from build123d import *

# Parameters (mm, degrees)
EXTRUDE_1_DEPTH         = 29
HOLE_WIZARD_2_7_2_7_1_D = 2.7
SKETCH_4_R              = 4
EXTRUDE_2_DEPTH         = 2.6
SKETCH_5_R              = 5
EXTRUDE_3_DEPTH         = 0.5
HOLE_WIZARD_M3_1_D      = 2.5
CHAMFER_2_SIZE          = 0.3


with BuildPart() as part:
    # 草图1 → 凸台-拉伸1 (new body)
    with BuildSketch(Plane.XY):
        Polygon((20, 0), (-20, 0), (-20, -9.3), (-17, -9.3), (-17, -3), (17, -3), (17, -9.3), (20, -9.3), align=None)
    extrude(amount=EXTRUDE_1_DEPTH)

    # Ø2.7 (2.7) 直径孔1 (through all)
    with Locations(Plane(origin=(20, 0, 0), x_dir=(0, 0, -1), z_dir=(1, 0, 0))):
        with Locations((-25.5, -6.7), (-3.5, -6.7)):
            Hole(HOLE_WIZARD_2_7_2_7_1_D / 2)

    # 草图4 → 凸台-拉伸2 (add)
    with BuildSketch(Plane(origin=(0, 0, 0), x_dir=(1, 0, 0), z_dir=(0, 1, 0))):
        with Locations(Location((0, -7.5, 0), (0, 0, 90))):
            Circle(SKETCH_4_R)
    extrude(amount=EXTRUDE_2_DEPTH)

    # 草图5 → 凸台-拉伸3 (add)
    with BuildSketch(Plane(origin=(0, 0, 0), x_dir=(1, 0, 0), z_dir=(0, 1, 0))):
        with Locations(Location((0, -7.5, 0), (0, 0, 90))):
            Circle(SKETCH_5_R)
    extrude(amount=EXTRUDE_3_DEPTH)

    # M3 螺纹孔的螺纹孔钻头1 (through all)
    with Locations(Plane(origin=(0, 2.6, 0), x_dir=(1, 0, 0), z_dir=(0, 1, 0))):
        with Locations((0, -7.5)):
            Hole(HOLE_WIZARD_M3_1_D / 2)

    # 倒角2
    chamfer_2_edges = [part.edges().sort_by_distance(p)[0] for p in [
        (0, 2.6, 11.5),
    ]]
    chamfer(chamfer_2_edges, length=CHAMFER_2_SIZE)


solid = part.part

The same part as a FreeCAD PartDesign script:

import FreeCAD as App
import Part
import Sketcher
from FreeCAD import Vector


def edges_at(feature, points):
    """Names of the edges that pass closest to the given points."""
    edges = feature.Shape.Edges
    near = lambda p: min(range(len(edges)), key=lambda i: edges[i].distToShape(Part.Vertex(*p))[0])
    return sorted({f"Edge{near(p) + 1}" for p in points})

doc = App.newDocument("Part")
body = doc.addObject("PartDesign::Body", "Body")

# Sketch on XY plane
sketch1 = doc.addObject("Sketcher::SketchObject", "Sketch")
body.addObject(sketch1)
sketch1.AttachmentSupport = (doc.XY_Plane, [""])
sketch1.MapMode = "FlatFace"
sketch1.addGeometry(Part.LineSegment(Vector(20, 0, 0), Vector(-20, 0, 0)), False)
sketch1.addGeometry(Part.LineSegment(Vector(-20, 0, 0), Vector(-20, -9.3, 0)), False)
sketch1.addGeometry(Part.LineSegment(Vector(-20, -9.3, 0), Vector(-17, -9.3, 0)), False)
sketch1.addGeometry(Part.LineSegment(Vector(-17, -9.3, 0), Vector(-17, -3, 0)), False)
sketch1.addGeometry(Part.LineSegment(Vector(-17, -3, 0), Vector(17, -3, 0)), False)
sketch1.addGeometry(Part.LineSegment(Vector(17, -3, 0), Vector(17, -9.3, 0)), False)
sketch1.addGeometry(Part.LineSegment(Vector(17, -9.3, 0), Vector(20, -9.3, 0)), False)
sketch1.addGeometry(Part.LineSegment(Vector(20, -9.3, 0), Vector(20, 0, 0)), False)
sketch1.addConstraint(Sketcher.Constraint("Coincident", 0, 2, 1, 1))
sketch1.addConstraint(Sketcher.Constraint("Coincident", 1, 2, 2, 1))
sketch1.addConstraint(Sketcher.Constraint("Coincident", 2, 2, 3, 1))
sketch1.addConstraint(Sketcher.Constraint("Coincident", 3, 2, 4, 1))
sketch1.addConstraint(Sketcher.Constraint("Coincident", 4, 2, 5, 1))
sketch1.addConstraint(Sketcher.Constraint("Coincident", 5, 2, 6, 1))
sketch1.addConstraint(Sketcher.Constraint("Coincident", 6, 2, 7, 1))
sketch1.addConstraint(Sketcher.Constraint("Coincident", 7, 2, 0, 1))
sketch1.addConstraint(Sketcher.Constraint("Horizontal", 0))
sketch1.addConstraint(Sketcher.Constraint("Vertical", 1))
sketch1.addConstraint(Sketcher.Constraint("Horizontal", 2))
sketch1.addConstraint(Sketcher.Constraint("Vertical", 3))
sketch1.addConstraint(Sketcher.Constraint("Horizontal", 4))
sketch1.addConstraint(Sketcher.Constraint("Vertical", 5))
sketch1.addConstraint(Sketcher.Constraint("Horizontal", 6))
sketch1.addConstraint(Sketcher.Constraint("Vertical", 7))
sketch1.addConstraint(Sketcher.Constraint("Symmetric", 0, 2, 7, 2, -1, 1))
sketch1.addConstraint(Sketcher.Constraint("Symmetric", 2, 2, 5, 2, -2))
sketch1.addConstraint(Sketcher.Constraint("DistanceX", 0, 2, 0, 1, 40.0))
sketch1.addConstraint(Sketcher.Constraint("DistanceX", 2, 1, 2, 2, 3.0))
sketch1.addConstraint(Sketcher.Constraint("DistanceY", 1, 2, 1, 1, 9.3))
sketch1.addConstraint(Sketcher.Constraint("DistanceY", 3, 1, 3, 2, 6.3))
pad1 = doc.addObject("PartDesign::Pad", "Pad")
body.addObject(pad1)
pad1.Profile = sketch1
pad1.Length = 29

# Sketch on YZ plane
sketch2 = doc.addObject("Sketcher::SketchObject", "Sketch001")
body.addObject(sketch2)
sketch2.AttachmentSupport = (doc.YZ_Plane, [""])
sketch2.MapMode = "FlatFace"
sketch2.AttachmentOffset = App.Placement(Vector(0, 0, 20), App.Rotation())
sketch2.addGeometry(Part.Circle(Vector(-6.7, 25.5, 0), Vector(0, 0, 1), 1.4), False)
sketch2.addGeometry(Part.Circle(Vector(-6.7, 3.5, 0), Vector(0, 0, 1), 1.4), False)
sketch2.addConstraint(Sketcher.Constraint("Equal", 0, 1))
sketch2.addConstraint(Sketcher.Constraint("Vertical", 0, 3, 1, 3))
sketch2.addConstraint(Sketcher.Constraint("Diameter", 0, 2.7))
sketch2.addConstraint(Sketcher.Constraint("DistanceY", 1, 3, 0, 3, 22.0))
sketch2.addConstraint(Sketcher.Constraint("DistanceX", 0, 3, -1, 1, 6.7))
sketch2.addConstraint(Sketcher.Constraint("DistanceY", -1, 1, 0, 3, 25.5))
doc.recompute()
hole = doc.addObject("PartDesign::Hole", "Hole")
body.addObject(hole)
hole.Profile = sketch2
hole.ThreadType = "None"
hole.Diameter = 2.7
hole.DepthType = "ThroughAll"

# Sketch on XZ plane
sketch3 = doc.addObject("Sketcher::SketchObject", "Sketch002")
body.addObject(sketch3)
sketch3.AttachmentSupport = (doc.XZ_Plane, [""])
sketch3.MapMode = "FlatFace"
sketch3.addGeometry(Part.Circle(Vector(0, 7.5, 0), Vector(0, 0, 1), 4), False)
sketch3.addConstraint(Sketcher.Constraint("PointOnObject", 0, 3, -2))
sketch3.addConstraint(Sketcher.Constraint("Diameter", 0, 8.0))
sketch3.addConstraint(Sketcher.Constraint("DistanceY", -1, 1, 0, 3, 7.5))
pad2 = doc.addObject("PartDesign::Pad", "Pad001")
body.addObject(pad2)
pad2.Profile = sketch3
pad2.Length = 2.6
pad2.Reversed = True

# Sketch on XZ plane
sketch4 = doc.addObject("Sketcher::SketchObject", "Sketch003")
body.addObject(sketch4)
sketch4.AttachmentSupport = (doc.XZ_Plane, [""])
sketch4.MapMode = "FlatFace"
sketch4.addGeometry(Part.Circle(Vector(0, 8, 0), Vector(0, 0, 1), 5), False)
sketch4.addConstraint(Sketcher.Constraint("PointOnObject", 0, 3, -2))
sketch4.addConstraint(Sketcher.Constraint("Diameter", 0, 10.0))
sketch4.addConstraint(Sketcher.Constraint("DistanceY", -1, 1, 0, 3, 7.5))
pad3 = doc.addObject("PartDesign::Pad", "Pad002")
body.addObject(pad3)
pad3.Profile = sketch4
pad3.Length = 0.5
pad3.Reversed = True

# Sketch on XZ plane
sketch5 = doc.addObject("Sketcher::SketchObject", "Sketch004")
body.addObject(sketch5)
sketch5.AttachmentSupport = (doc.XZ_Plane, [""])
sketch5.MapMode = "FlatFace"
sketch5.AttachmentOffset = App.Placement(Vector(0, 0, -2.6), App.Rotation())
sketch5.addGeometry(Part.Circle(Vector(0, 7.5, 0), Vector(0, 0, 1), 1.2), False)
sketch5.addConstraint(Sketcher.Constraint("PointOnObject", 0, 3, -2))
sketch5.addConstraint(Sketcher.Constraint("Diameter", 0, 2.5))
sketch5.addConstraint(Sketcher.Constraint("DistanceY", -1, 1, 0, 3, 7.5))
doc.recompute()
hole2 = doc.addObject("PartDesign::Hole", "Hole001")
body.addObject(hole2)
hole2.Profile = sketch5
hole2.ThreadType = "None"
hole2.Diameter = 2.5
hole2.DepthType = "ThroughAll"
hole2.Reversed = True
doc.recompute()

chamfer = doc.addObject("PartDesign::Chamfer", "Chamfer")
body.addObject(chamfer)
chamfer.Base = (hole2, edges_at(hole2, [(0, 2.6, 11.5)]))
chamfer.Size = 0.3

doc.recompute()
